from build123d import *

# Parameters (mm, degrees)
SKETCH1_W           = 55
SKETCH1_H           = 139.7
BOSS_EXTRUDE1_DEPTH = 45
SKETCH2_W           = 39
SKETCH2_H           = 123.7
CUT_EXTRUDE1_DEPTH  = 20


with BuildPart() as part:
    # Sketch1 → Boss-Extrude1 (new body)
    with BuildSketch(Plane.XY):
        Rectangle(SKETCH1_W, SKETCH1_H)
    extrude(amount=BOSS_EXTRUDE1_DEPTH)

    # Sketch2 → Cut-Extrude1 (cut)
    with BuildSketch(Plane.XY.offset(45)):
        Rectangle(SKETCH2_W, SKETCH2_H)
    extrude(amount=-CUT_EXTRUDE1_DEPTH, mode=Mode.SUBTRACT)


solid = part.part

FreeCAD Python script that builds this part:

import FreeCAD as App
import Part
import Sketcher
from FreeCAD import Vector

doc = App.newDocument("Part")
body = doc.addObject("PartDesign::Body", "Body")

# Sketch on XY plane
sketch1 = doc.addObject("Sketcher::SketchObject", "Sketch")
body.addObject(sketch1)
sketch1.AttachmentSupport = (doc.XY_Plane, [""])
sketch1.MapMode = "FlatFace"
sketch1.addGeometry(Part.LineSegment(Vector(-28, 70, 0), Vector(-28, -70, 0)), False)
sketch1.addGeometry(Part.LineSegment(Vector(-28, -70, 0), Vector(28, -70, 0)), False)
sketch1.addGeometry(Part.LineSegment(Vector(28, -70, 0), Vector(28, 70, 0)), False)
sketch1.addGeometry(Part.LineSegment(Vector(28, 70, 0), Vector(-28, 70, 0)), False)
sketch1.addConstraint(Sketcher.Constraint("Coincident", 0, 2, 1, 1))
sketch1.addConstraint(Sketcher.Constraint("Coincident", 1, 2, 2, 1))
sketch1.addConstraint(Sketcher.Constraint("Coincident", 2, 2, 3, 1))
sketch1.addConstraint(Sketcher.Constraint("Coincident", 3, 2, 0, 1))
sketch1.addConstraint(Sketcher.Constraint("Vertical", 0))
sketch1.addConstraint(Sketcher.Constraint("Horizontal", 1))
sketch1.addConstraint(Sketcher.Constraint("Vertical", 2))
sketch1.addConstraint(Sketcher.Constraint("Horizontal", 3))
sketch1.addConstraint(Sketcher.Constraint("Symmetric", 0, 2, 2, 2, -1, 1))
sketch1.addConstraint(Sketcher.Constraint("DistanceX", 1, 1, 1, 2, 55.0))
sketch1.addConstraint(Sketcher.Constraint("DistanceY", 0, 2, 0, 1, 139.7))
pad1 = doc.addObject("PartDesign::Pad", "Pad")
body.addObject(pad1)
pad1.Profile = sketch1
pad1.Length = 45

# Sketch on XY plane
sketch2 = doc.addObject("Sketcher::SketchObject", "Sketch001")
body.addObject(sketch2)
sketch2.AttachmentSupport = (doc.XY_Plane, [""])
sketch2.MapMode = "FlatFace"
sketch2.AttachmentOffset = App.Placement(Vector(0, 0, 45), App.Rotation())
sketch2.addGeometry(Part.LineSegment(Vector(-20, 62, 0), Vector(-20, -62, 0)), False)
sketch2.addGeometry(Part.LineSegment(Vector(-20, -62, 0), Vector(20, -62, 0)), False)
sketch2.addGeometry(Part.LineSegment(Vector(20, -62, 0), Vector(20, 62, 0)), False)
sketch2.addGeometry(Part.LineSegment(Vector(20, 62, 0), Vector(-20, 62, 0)), False)
sketch2.addConstraint(Sketcher.Constraint("Coincident", 0, 2, 1, 1))
sketch2.addConstraint(Sketcher.Constraint("Coincident", 1, 2, 2, 1))
sketch2.addConstraint(Sketcher.Constraint("Coincident", 2, 2, 3, 1))
sketch2.addConstraint(Sketcher.Constraint("Coincident", 3, 2, 0, 1))
sketch2.addConstraint(Sketcher.Constraint("Vertical", 0))
sketch2.addConstraint(Sketcher.Constraint("Horizontal", 1))
sketch2.addConstraint(Sketcher.Constraint("Vertical", 2))
sketch2.addConstraint(Sketcher.Constraint("Horizontal", 3))
sketch2.addConstraint(Sketcher.Constraint("Symmetric", 0, 2, 2, 2, -1, 1))
sketch2.addConstraint(Sketcher.Constraint("DistanceX", 1, 1, 1, 2, 39.0))
sketch2.addConstraint(Sketcher.Constraint("DistanceY", 0, 2, 0, 1, 123.7))
pocket1 = doc.addObject("PartDesign::Pocket", "Pocket")
body.addObject(pocket1)
pocket1.Profile = sketch2
pocket1.Length = 20

doc.recompute()
